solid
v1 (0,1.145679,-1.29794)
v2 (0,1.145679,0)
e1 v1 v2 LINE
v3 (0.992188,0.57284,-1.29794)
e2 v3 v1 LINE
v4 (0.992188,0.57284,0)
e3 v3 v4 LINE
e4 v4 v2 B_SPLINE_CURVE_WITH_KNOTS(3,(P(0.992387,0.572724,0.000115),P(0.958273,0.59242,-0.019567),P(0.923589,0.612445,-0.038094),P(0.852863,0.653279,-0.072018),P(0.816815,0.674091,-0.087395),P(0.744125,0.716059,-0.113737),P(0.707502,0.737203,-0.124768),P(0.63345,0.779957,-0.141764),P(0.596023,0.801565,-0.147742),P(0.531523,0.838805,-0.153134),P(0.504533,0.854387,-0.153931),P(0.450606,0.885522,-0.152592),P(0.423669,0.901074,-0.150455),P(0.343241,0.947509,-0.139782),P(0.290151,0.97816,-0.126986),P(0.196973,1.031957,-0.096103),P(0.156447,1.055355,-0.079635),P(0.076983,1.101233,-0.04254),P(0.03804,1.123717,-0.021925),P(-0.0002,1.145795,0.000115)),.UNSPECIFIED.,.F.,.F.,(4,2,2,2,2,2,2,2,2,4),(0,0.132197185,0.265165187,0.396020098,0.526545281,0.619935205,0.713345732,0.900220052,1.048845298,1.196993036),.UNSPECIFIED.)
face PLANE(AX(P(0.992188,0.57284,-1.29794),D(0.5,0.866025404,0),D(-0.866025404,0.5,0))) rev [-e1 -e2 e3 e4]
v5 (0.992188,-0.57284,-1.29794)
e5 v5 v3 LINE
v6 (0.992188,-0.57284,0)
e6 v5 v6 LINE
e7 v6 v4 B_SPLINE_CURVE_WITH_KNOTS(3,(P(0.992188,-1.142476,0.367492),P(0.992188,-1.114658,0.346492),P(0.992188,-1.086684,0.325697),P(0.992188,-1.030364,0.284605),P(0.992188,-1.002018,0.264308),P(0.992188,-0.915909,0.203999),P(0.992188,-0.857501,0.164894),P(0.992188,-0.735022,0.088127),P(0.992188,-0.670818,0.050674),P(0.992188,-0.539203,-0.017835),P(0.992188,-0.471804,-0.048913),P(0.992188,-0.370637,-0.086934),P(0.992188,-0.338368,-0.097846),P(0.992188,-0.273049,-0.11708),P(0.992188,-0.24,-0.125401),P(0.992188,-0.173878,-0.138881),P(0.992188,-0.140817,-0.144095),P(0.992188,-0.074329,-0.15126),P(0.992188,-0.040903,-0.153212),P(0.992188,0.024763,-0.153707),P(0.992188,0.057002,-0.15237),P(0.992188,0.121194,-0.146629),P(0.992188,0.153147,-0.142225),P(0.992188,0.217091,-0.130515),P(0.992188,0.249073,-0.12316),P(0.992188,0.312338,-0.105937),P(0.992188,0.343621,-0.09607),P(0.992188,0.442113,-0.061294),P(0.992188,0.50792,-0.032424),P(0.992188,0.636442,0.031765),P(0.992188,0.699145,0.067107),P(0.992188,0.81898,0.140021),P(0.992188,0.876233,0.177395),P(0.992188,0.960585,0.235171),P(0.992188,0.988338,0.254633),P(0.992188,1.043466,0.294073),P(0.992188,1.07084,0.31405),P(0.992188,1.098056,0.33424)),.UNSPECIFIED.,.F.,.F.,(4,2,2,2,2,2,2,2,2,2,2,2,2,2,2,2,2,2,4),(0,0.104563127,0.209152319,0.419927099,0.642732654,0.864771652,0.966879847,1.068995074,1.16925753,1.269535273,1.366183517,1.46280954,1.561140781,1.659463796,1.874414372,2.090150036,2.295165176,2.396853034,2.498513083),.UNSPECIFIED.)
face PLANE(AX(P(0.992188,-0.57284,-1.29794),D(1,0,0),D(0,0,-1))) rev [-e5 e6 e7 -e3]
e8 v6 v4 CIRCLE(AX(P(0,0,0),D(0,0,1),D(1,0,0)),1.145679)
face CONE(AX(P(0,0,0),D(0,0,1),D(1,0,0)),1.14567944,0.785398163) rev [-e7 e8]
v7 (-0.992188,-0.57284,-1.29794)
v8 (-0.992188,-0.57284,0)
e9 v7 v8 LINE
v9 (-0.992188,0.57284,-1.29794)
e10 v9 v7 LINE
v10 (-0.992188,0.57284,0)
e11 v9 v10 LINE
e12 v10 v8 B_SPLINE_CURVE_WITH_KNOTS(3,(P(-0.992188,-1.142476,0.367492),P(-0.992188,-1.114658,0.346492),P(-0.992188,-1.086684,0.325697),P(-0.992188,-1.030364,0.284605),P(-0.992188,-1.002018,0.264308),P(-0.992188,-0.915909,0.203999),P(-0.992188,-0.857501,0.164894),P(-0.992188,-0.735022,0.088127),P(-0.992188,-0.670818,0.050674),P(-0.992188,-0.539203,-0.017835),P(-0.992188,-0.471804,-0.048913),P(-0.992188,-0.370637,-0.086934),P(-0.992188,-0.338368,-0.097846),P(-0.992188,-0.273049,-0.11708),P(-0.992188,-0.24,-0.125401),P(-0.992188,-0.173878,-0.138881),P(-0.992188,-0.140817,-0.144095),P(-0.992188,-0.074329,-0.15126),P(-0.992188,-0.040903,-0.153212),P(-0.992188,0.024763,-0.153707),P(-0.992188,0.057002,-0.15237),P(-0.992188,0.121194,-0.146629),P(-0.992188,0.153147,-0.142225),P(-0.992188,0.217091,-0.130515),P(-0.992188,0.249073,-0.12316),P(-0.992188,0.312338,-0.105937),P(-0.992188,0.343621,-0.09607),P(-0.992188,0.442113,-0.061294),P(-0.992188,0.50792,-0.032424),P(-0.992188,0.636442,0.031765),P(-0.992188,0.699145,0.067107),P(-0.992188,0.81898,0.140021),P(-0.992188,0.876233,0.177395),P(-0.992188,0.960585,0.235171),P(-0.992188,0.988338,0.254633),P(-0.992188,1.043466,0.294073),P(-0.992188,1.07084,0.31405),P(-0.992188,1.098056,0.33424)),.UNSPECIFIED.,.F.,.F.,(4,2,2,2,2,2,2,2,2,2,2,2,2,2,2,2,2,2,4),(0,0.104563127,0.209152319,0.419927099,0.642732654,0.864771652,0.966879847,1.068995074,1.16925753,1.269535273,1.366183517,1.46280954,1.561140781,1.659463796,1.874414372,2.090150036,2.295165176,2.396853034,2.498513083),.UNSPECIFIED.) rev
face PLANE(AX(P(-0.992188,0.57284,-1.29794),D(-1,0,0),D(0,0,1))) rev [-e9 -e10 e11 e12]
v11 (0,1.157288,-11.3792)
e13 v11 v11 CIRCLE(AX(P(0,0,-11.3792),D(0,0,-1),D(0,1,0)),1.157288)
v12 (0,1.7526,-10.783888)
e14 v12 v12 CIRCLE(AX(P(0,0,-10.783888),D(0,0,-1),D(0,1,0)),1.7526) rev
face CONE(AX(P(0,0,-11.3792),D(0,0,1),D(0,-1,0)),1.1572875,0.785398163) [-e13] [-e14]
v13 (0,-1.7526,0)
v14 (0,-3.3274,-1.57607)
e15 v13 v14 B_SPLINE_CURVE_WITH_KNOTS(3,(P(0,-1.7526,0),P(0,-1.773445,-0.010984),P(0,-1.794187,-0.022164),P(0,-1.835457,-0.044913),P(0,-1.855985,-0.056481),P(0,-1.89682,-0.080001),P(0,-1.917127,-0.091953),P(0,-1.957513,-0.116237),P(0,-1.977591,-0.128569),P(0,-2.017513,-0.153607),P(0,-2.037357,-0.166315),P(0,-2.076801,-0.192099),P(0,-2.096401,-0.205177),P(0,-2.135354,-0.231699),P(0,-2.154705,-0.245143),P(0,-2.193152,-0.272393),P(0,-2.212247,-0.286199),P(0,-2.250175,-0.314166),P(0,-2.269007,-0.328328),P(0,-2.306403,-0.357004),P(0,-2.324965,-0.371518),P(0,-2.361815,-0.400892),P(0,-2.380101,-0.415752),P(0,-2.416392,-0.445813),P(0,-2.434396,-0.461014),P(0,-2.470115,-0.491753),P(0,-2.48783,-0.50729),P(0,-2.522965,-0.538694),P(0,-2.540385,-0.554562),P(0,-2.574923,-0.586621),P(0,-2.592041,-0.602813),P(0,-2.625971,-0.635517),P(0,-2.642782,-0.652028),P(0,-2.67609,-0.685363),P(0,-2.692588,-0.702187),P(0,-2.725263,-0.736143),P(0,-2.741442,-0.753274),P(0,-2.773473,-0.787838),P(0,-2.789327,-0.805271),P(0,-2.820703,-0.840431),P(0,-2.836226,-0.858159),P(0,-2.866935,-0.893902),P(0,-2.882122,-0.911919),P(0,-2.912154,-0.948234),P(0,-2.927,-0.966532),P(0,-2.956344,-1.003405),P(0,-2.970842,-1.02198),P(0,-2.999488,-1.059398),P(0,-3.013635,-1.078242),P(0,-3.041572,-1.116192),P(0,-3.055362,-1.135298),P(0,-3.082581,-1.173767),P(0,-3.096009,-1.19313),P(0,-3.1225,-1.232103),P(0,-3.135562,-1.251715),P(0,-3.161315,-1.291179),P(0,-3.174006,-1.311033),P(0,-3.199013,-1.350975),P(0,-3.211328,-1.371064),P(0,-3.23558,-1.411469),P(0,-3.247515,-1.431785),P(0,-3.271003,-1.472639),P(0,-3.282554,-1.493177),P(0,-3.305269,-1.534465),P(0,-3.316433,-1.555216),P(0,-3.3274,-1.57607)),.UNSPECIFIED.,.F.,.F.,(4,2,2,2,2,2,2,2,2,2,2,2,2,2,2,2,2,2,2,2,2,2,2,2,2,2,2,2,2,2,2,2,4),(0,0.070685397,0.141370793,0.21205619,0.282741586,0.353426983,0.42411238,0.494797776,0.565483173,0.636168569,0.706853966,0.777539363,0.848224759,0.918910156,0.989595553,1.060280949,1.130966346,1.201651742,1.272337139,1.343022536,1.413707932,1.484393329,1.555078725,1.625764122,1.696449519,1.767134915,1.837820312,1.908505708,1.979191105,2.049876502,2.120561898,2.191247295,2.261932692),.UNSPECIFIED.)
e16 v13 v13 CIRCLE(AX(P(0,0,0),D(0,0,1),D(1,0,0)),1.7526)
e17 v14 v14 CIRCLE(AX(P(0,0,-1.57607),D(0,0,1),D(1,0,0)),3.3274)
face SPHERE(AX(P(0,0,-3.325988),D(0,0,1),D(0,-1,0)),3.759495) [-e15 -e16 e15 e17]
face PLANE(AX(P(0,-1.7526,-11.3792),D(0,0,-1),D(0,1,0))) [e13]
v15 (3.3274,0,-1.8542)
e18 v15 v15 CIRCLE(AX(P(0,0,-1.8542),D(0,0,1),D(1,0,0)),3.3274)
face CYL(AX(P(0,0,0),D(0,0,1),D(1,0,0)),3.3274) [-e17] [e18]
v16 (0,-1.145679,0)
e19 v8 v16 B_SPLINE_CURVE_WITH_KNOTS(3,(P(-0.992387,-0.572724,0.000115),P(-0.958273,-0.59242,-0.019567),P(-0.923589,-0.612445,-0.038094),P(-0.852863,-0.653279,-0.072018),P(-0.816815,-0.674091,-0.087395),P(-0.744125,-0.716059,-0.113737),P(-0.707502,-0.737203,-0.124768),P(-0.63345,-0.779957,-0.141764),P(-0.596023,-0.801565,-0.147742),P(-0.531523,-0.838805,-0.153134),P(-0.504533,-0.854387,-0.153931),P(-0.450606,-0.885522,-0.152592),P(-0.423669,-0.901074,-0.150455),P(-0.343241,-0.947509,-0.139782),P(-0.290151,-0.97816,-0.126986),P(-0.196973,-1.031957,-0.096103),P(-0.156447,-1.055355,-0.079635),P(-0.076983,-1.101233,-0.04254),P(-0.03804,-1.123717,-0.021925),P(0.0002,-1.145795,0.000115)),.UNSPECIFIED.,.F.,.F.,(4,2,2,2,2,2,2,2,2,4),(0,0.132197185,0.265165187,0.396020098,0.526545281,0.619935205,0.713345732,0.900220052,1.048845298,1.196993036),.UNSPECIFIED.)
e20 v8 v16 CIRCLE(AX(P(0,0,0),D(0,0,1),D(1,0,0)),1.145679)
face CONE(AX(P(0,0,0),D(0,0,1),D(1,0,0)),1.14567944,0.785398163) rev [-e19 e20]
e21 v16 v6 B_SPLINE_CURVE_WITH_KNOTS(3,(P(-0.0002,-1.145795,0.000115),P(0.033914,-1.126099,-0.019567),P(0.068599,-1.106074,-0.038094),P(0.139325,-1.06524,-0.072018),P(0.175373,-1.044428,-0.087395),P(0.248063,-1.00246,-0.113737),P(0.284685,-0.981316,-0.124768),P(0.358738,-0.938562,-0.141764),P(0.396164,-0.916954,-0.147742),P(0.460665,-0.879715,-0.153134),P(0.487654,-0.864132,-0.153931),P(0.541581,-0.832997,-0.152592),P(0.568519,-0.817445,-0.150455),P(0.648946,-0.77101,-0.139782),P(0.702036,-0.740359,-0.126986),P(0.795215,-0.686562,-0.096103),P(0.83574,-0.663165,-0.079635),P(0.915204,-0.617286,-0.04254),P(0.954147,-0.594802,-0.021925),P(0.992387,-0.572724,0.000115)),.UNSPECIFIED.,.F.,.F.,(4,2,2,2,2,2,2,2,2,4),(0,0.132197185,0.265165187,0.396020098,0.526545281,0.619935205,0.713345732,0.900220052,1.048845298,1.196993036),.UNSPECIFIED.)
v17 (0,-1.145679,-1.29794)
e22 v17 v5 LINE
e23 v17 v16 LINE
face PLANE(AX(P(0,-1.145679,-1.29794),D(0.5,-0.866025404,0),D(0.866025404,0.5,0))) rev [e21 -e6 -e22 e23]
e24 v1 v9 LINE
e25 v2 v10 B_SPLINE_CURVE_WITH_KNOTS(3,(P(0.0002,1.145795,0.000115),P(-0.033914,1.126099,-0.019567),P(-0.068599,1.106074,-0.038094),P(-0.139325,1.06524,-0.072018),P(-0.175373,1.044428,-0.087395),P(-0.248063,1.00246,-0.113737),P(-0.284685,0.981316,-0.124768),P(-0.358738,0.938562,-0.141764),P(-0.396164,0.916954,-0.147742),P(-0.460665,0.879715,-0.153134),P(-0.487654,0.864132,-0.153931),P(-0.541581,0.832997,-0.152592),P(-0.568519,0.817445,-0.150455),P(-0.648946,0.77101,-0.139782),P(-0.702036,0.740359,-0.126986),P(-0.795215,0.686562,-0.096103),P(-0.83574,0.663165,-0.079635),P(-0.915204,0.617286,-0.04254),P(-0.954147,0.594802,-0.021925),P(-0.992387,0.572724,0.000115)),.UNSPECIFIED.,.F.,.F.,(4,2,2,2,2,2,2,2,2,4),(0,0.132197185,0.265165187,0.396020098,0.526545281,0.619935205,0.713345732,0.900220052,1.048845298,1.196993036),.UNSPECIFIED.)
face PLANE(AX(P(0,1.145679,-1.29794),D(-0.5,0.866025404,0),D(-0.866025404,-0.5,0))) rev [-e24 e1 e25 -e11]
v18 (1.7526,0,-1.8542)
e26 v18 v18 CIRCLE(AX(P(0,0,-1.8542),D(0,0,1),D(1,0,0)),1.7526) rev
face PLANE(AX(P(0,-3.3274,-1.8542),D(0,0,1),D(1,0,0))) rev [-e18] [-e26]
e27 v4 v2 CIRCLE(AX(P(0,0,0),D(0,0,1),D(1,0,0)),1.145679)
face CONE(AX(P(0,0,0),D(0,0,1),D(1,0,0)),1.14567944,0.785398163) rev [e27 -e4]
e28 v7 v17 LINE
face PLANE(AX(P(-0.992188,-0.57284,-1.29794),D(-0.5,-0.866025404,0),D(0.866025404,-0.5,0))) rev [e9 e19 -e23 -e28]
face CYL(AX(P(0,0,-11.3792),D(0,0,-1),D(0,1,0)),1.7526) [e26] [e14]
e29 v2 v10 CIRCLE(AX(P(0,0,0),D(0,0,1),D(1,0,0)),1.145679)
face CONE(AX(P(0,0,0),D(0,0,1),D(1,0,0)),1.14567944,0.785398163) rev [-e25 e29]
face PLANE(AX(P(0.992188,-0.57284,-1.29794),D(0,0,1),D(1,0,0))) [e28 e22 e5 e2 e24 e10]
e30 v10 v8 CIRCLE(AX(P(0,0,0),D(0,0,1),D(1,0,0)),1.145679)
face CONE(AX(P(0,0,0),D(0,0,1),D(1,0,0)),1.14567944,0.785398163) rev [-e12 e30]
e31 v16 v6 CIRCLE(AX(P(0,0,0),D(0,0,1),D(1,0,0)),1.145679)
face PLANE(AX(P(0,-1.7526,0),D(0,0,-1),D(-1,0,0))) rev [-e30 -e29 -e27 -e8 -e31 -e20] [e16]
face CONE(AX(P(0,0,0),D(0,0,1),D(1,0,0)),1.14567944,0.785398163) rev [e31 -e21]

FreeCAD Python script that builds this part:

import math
import FreeCAD as App
import Part
import Sketcher
Q = App.Units.Quantity


def edges_at(feature, points):
    """Names of the edges that pass closest to the given points."""
    edges = feature.Shape.Edges
    near = lambda p: min(range(len(edges)), key=lambda i: edges[i].distToShape(Part.Vertex(*p))[0])
    return sorted({f"Edge{near(p) + 1}" for p in points})


def add_polygon(sketch, points):
    """Adds a closed chain of lines whose ends are joined by coincident constraints."""
    first, n = sketch.GeometryCount, len(points)
    for a, b in zip(points, points[1:] + points[:1]):
        sketch.addGeometry(Part.LineSegment(App.Vector(*a, 0), App.Vector(*b, 0)), False)
    for i in range(n):
        sketch.addConstraint(Sketcher.Constraint("Coincident", first + i, 2, first + (i + 1) % n, 1))

doc = App.newDocument("Part")
body = doc.addObject("PartDesign::Body", "Body")

# Sketch on YZ plane
sketch1 = body.newObject("Sketcher::SketchObject", "Sketch")
sketch1.AttachmentSupport = (doc.getObject("YZ_Plane"), [""])
sketch1.MapMode = "FlatFace"
add_polygon(sketch1, [(1.8, -1.9), (0, -1.9), (0, -11.4), (1.8, -11.4)])  # lines 0-3
sketch1.addConstraint([
    Sketcher.Constraint("Horizontal", 0),
    Sketcher.Constraint("Vertical", 1),
    Sketcher.Constraint("Horizontal", 2),
    Sketcher.Constraint("Vertical", 3),
    Sketcher.Constraint("PointOnObject", 0, 2, -2),
    Sketcher.Constraint("DistanceX", 0, 2, 0, 1, Q("0.069 in")),
    Sketcher.Constraint("DistanceY", 1, 2, 1, 1, Q("0.375 in")),
    Sketcher.Constraint("DistanceY", 0, 2, -1, 1, Q("0.073 in")),
])
revolution = body.newObject("PartDesign::Revolution", "Revolution")
revolution.Profile = sketch1
revolution.ReferenceAxis = (sketch1, ["V_Axis"])
revolution.Angle = 360
doc.recompute()

chamfer = body.newObject("PartDesign::Chamfer", "Chamfer")
chamfer.Base = (revolution, edges_at(revolution, [(0, -1.753, -11.379)]))
chamfer.Size = 0.595313

# Sketch on YZ plane
sketch2 = body.newObject("Sketcher::SketchObject", "Sketch001")
sketch2.AttachmentSupport = (doc.getObject("YZ_Plane"), [""])
sketch2.MapMode = "FlatFace"
sketch2.addGeometry([
    Part.LineSegment(App.Vector(3.33, -1.85, 0), App.Vector(3.33, -1.58, 0)),  # 0
    Part.ArcOfCircle(Part.Circle(App.Vector(0, -3.33, 0), App.Vector(0, 0, 1), 3.76), math.radians(28), math.radians(62)),  # 1
    Part.LineSegment(App.Vector(1.75, 0, 0), App.Vector(0, 0, 0)),  # 2
    Part.LineSegment(App.Vector(0, 0, 0), App.Vector(0, -1.85, 0)),  # 3
    Part.LineSegment(App.Vector(0, -1.85, 0), App.Vector(3.33, -1.85, 0)),  # 4
], False)
sketch2.addConstraint([
    Sketcher.Constraint("Coincident", 0, 2, 1, 1),
    Sketcher.Constraint("Coincident", 1, 2, 2, 1),
    Sketcher.Constraint("Coincident", 2, 2, 3, 1),
    Sketcher.Constraint("Coincident", 3, 2, 4, 1),
    Sketcher.Constraint("Coincident", 4, 2, 0, 1),
    Sketcher.Constraint("Vertical", 0),
    Sketcher.Constraint("Horizontal", 2),
    Sketcher.Constraint("Vertical", 3),
    Sketcher.Constraint("Horizontal", 4),
    Sketcher.Constraint("Coincident", 2, 2, -1, 1),
    Sketcher.Constraint("PointOnObject", 1, 3, -2),
    Sketcher.Constraint("DistanceX", 2, 2, 2, 1, Q("0.069 in")),
    Sketcher.Constraint("DistanceX", 4, 1, 4, 2, Q("0.131 in")),
    Sketcher.Constraint("DistanceY", 3, 2, 3, 1, Q("0.073 in")),
    Sketcher.Constraint("Radius", 1, Q("3.759495 mm")),
])
revolution2 = body.newObject("PartDesign::Revolution", "Revolution001")
revolution2.Profile = sketch2
revolution2.ReferenceAxis = (sketch2, ["V_Axis"])
revolution2.Angle = 360

# Sketch on XY plane
sketch3 = body.newObject("Sketcher::SketchObject", "Sketch002")
sketch3.AttachmentSupport = (doc.getObject("XY_Plane"), [""])
sketch3.MapMode = "FlatFace"
add_polygon(sketch3, [(1, -0.6), (1, 0.6), (0, 1.1), (-1, 0.6), (-1, -0.6), (0, -1.1)])  # lines 0-5
sketch3.addConstraint([
    Sketcher.Constraint("Vertical", 0),
    Sketcher.Constraint("Vertical", 3),
    Sketcher.Constraint("Symmetric", 0, 2, 3, 2, -1, 1),
    Sketcher.Constraint("Symmetric", 1, 2, 4, 2, -1, 1),
    Sketcher.Constraint("PointOnObject", 1, 2, -2),
    Sketcher.Constraint("Parallel", 2, 5),
    Sketcher.Constraint("Horizontal", 0, 2, 2, 2),
    Sketcher.Constraint("Angle", 1, Q("150 deg")),
    Sketcher.Constraint("DistanceX", 2, 2, 0, 2, Q("0.078125 in")),
    Sketcher.Constraint("DistanceY", 0, 1, 0, 2, Q("1.145679 mm")),
])
pocket1 = body.newObject("PartDesign::Pocket", "Pocket")
pocket1.Profile = sketch3
pocket1.Length = Q("0.0511 in")

# Sketch on YZ plane
sketch4 = body.newObject("Sketcher::SketchObject", "Sketch003")
sketch4.AttachmentSupport = (doc.getObject("YZ_Plane"), [""])
sketch4.MapMode = "FlatFace"
add_polygon(sketch4, [(0, 0), (-1.1, 0), (0, -1.1)])  # lines 0-2
sketch4.addConstraint([
    Sketcher.Constraint("Horizontal", 0),
    Sketcher.Constraint("Vertical", 2),
    Sketcher.Constraint("Coincident", 2, 2, -1, 1),
    Sketcher.Constraint("Equal", 0, 2),
    Sketcher.Constraint("DistanceX", 0, 2, 0, 1, Q("1.145679 mm")),
])
groove = body.newObject("PartDesign::Groove", "Groove")
groove.Profile = sketch4
groove.ReferenceAxis = (sketch4, ["V_Axis"])
groove.Angle = 360

doc.recompute()
